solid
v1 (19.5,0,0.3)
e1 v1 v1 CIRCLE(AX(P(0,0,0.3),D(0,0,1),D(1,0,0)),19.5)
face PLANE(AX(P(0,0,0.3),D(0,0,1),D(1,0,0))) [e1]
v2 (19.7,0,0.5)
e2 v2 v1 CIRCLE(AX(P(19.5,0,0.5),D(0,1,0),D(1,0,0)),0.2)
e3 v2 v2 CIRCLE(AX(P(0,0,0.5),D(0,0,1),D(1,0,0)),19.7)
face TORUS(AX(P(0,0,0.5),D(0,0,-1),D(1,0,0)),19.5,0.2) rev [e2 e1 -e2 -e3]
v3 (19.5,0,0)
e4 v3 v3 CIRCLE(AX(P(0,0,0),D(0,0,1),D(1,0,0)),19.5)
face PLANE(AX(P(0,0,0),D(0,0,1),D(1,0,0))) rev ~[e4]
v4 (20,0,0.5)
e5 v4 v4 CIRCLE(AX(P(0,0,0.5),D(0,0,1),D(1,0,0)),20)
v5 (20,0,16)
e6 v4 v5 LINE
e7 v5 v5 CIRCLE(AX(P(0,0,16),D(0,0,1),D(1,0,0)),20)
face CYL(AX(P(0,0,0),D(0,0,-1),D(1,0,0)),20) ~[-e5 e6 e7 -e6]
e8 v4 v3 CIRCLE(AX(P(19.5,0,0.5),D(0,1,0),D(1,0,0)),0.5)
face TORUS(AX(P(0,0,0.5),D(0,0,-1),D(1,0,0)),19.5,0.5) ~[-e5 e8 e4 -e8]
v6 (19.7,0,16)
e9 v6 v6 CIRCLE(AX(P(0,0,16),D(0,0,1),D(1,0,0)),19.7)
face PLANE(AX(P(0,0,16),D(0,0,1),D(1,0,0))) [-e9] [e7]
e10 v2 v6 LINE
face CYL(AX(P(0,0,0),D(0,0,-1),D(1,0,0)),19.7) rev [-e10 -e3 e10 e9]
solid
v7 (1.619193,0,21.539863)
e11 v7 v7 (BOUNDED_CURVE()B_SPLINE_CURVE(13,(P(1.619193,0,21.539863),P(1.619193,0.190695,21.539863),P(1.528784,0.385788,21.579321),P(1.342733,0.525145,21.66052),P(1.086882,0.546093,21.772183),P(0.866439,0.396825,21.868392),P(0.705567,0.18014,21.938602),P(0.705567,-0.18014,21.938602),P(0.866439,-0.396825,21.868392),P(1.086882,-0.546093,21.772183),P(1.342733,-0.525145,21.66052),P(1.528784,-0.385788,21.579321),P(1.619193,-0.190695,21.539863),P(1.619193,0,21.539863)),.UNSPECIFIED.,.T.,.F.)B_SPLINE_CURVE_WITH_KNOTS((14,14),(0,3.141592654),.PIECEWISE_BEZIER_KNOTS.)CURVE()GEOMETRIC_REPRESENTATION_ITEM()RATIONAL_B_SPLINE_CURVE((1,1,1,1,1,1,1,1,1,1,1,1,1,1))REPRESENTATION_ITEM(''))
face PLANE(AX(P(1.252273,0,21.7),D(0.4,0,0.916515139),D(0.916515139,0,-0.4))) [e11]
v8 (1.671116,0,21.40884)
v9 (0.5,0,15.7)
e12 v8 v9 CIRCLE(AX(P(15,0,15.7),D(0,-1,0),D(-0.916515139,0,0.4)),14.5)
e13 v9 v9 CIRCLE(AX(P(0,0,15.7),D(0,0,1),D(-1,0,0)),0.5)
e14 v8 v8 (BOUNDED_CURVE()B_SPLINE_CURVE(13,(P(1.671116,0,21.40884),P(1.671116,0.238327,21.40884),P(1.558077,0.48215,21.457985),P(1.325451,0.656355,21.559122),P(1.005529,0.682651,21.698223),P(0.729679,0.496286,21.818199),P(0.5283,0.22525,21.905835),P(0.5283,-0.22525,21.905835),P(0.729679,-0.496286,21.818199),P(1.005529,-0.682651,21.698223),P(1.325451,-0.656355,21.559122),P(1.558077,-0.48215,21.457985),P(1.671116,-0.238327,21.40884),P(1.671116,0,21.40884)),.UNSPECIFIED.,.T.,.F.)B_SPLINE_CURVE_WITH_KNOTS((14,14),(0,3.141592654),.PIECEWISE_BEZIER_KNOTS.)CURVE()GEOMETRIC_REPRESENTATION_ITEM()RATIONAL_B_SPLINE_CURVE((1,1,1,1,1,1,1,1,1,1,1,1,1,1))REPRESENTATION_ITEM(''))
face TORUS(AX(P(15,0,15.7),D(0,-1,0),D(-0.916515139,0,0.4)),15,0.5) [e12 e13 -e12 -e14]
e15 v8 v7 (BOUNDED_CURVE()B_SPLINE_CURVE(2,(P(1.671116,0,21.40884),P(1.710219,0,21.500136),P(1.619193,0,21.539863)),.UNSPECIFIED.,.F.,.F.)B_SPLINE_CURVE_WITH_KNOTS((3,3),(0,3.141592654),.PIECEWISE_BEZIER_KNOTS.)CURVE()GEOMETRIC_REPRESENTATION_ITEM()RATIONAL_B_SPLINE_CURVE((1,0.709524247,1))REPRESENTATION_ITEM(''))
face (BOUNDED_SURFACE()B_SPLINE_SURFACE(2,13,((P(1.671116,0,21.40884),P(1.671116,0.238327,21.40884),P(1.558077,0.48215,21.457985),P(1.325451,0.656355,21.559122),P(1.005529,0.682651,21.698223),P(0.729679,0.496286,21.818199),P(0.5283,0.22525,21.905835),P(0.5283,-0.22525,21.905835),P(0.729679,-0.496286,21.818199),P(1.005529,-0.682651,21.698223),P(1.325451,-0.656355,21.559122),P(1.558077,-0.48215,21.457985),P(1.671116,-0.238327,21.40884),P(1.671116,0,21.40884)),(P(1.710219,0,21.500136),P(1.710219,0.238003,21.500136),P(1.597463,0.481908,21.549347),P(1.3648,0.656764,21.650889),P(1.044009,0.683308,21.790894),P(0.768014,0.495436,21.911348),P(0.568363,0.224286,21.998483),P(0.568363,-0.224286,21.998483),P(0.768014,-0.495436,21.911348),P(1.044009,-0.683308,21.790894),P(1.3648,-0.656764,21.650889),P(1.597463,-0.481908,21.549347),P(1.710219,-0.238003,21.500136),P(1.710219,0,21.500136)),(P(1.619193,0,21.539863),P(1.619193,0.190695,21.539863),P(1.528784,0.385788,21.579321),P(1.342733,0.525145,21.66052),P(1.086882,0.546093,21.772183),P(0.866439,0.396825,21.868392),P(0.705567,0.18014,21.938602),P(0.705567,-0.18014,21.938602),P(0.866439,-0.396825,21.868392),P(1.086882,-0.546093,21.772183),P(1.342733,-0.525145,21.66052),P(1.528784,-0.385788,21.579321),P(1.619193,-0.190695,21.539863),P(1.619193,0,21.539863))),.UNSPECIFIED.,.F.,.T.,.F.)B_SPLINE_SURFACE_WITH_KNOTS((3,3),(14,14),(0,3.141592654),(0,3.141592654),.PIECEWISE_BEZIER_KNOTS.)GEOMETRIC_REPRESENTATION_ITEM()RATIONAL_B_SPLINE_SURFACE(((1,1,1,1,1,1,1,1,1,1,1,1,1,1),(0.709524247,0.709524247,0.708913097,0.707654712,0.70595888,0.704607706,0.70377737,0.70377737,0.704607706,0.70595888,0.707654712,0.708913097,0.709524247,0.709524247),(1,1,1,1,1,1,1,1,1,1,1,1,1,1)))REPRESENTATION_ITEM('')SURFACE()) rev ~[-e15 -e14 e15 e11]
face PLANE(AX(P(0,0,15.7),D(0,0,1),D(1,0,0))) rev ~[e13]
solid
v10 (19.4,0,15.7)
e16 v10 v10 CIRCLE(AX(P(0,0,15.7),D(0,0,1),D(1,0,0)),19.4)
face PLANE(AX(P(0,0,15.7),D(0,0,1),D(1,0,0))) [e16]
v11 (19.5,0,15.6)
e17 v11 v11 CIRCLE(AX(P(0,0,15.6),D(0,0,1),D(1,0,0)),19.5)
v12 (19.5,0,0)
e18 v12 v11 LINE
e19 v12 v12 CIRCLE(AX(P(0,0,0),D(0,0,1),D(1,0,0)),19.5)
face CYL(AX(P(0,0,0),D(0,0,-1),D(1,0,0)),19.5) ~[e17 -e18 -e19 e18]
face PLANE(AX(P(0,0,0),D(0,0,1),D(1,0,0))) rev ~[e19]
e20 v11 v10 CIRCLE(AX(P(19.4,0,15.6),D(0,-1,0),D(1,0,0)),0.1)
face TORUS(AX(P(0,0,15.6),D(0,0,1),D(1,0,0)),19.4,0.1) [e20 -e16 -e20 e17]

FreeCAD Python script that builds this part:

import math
import FreeCAD as App
import Part
import Sketcher
from FreeCAD import Vector


def edges_at(feature, points):
    """Names of the edges that pass closest to the given points."""
    edges = feature.Shape.Edges
    near = lambda p: min(range(len(edges)), key=lambda i: edges[i].distToShape(Part.Vertex(*p))[0])
    return sorted({f"Edge{near(p) + 1}" for p in points})


def faces_at(feature, points):
    """Names of the faces that lie closest to the given points."""
    faces = feature.Shape.Faces
    near = lambda p: min(range(len(faces)), key=lambda i: faces[i].distToShape(Part.Vertex(*p))[0])
    return sorted({f"Face{near(p) + 1}" for p in points})

doc = App.newDocument("Part")
params = doc.addObject("Spreadsheet::Sheet", "Params")
for row, (alias, value) in enumerate([
    ("sketch1_diameter", "40 mm"),
    ("pad1_length", "16 mm"),
    ("fillet_radius", "0.5 mm"),
    ("thickness_wall", "0.3 mm"),
    ("sketch2_diameter", "39 mm"),
    ("pad2_length", "15.7 mm"),
    ("fillet2_radius", "0.1 mm"),
    ("sketch3_diameter", "1 mm"),
    ("sketch4_radius", "15 mm"),
    ("sketch4_height", "6 mm"),
    ("sketch4_height2", "6 mm"),
    ("fillet3_radius", "0.1 mm"),
], start=1):
    params.set(f"A{row}", alias)
    params.set(f"B{row}", "=" + value)
    params.setAlias(f"B{row}", alias)

body = doc.addObject("PartDesign::Body", "Body")

# Sketch on XY plane
sketch1 = body.newObject("Sketcher::SketchObject", "Sketch")
sketch1.AttachmentSupport = (doc.getObject("XY_Plane"), [""])
sketch1.MapMode = "FlatFace"
sketch1.addGeometry(Part.Circle(Vector(0, 0, 0), Vector(0, 0, 1), 20), False)
sketch1.addConstraint([
    Sketcher.Constraint("Coincident", 0, 3, -1, 1),
    Sketcher.Constraint("Diameter", 0, 40.0),
])
sketch1.setExpression("Constraints[1]", "Params.sketch1_diameter")
pad1 = body.newObject("PartDesign::Pad", "Pad")
pad1.Profile = sketch1
pad1.setExpression("Length", "Params.pad1_length")
doc.recompute()

fillet = body.newObject("PartDesign::Fillet", "Fillet")
fillet.Base = (pad1, edges_at(pad1, [(-20, 0, 0)]))
fillet.setExpression("Radius", "Params.fillet_radius")
doc.recompute()

thickness = body.newObject("PartDesign::Thickness", "Thickness")
thickness.Base = (fillet, faces_at(fillet, [(0, 0, 16)]))
thickness.setExpression("Value", "Params.thickness_wall")
thickness.Reversed = True
thickness.Join = "Arc"
body2 = doc.addObject("PartDesign::Body", "Body001")

# Sketch on XY plane
sketch2 = body2.newObject("Sketcher::SketchObject", "Sketch001")
sketch2.AttachmentSupport = (doc.getObject("XY_Plane001"), [""])
sketch2.MapMode = "FlatFace"
sketch2.addGeometry(Part.Circle(Vector(0, 0, 0), Vector(0, 0, 1), 20), False)
sketch2.addConstraint([
    Sketcher.Constraint("Coincident", 0, 3, -1, 1),
    Sketcher.Constraint("Diameter", 0, 39.0),
])
sketch2.setExpression("Constraints[1]", "Params.sketch2_diameter")
pad2 = body2.newObject("PartDesign::Pad", "Pad001")
pad2.Profile = sketch2
pad2.setExpression("Length", "Params.pad2_length")
doc.recompute()

fillet2 = body2.newObject("PartDesign::Fillet", "Fillet001")
fillet2.Base = (pad2, edges_at(pad2, [(-19.5, 0, 15.7)]))
fillet2.setExpression("Radius", "Params.fillet2_radius")
body3 = doc.addObject("PartDesign::Body", "Body002")

# Sketch on XY plane
sketch3 = body3.newObject("Sketcher::SketchObject", "Sketch002")
sketch3.AttachmentSupport = (doc.getObject("XY_Plane002"), [""])
sketch3.MapMode = "FlatFace"
sketch3.AttachmentOffset = App.Placement(Vector(0, 0, 15.7), App.Rotation())
sketch3.addGeometry(Part.Circle(Vector(0, 0, 0), Vector(0, 0, 1), 0.5), False)
sketch3.addConstraint([
    Sketcher.Constraint("Coincident", 0, 3, -1, 1),
    Sketcher.Constraint("Diameter", 0, 1.0),
])
sketch3.setExpression("Constraints[1]", "Params.sketch3_diameter")

# Sketch on XZ plane
sketch4 = body3.newObject("Sketcher::SketchObject", "Sketch003")
sketch4.AttachmentSupport = (doc.getObject("XZ_Plane002"), [""])
sketch4.MapMode = "FlatFace"
sketch4.addGeometry(Part.ArcOfCircle(Part.Circle(Vector(15, 16, 0), Vector(0, 0, 1), 15), math.radians(156), math.radians(180)), False)
sketch4.addConstraint([
    Sketcher.Constraint("PointOnObject", 0, 2, -2),
    Sketcher.Constraint("Radius", 0, 15.0),
    Sketcher.Constraint("DistanceY", 0, 3, 0, 1, 6.0),
    Sketcher.Constraint("DistanceY", 0, 2, 0, 1, 6.0),
    Sketcher.Constraint("DistanceY", -1, 1, 0, 3, 15.7),
])
sketch4.setExpression("Constraints[1]", "Params.sketch4_radius")
sketch4.setExpression("Constraints[2]", "Params.sketch4_height")
sketch4.setExpression("Constraints[3]", "Params.sketch4_height2")
doc.recompute()

additivepipe = body3.newObject("PartDesign::AdditivePipe", "AdditivePipe")
additivepipe.Profile = sketch3
additivepipe.Spine = (sketch4, ["Edge1"])
doc.recompute()

fillet3 = body3.newObject("PartDesign::Fillet", "Fillet002")
fillet3.Base = (additivepipe, edges_at(additivepipe, [(0.794, 0, 21.9)]))
fillet3.setExpression("Radius", "Params.fillet3_radius")

doc.recompute()
